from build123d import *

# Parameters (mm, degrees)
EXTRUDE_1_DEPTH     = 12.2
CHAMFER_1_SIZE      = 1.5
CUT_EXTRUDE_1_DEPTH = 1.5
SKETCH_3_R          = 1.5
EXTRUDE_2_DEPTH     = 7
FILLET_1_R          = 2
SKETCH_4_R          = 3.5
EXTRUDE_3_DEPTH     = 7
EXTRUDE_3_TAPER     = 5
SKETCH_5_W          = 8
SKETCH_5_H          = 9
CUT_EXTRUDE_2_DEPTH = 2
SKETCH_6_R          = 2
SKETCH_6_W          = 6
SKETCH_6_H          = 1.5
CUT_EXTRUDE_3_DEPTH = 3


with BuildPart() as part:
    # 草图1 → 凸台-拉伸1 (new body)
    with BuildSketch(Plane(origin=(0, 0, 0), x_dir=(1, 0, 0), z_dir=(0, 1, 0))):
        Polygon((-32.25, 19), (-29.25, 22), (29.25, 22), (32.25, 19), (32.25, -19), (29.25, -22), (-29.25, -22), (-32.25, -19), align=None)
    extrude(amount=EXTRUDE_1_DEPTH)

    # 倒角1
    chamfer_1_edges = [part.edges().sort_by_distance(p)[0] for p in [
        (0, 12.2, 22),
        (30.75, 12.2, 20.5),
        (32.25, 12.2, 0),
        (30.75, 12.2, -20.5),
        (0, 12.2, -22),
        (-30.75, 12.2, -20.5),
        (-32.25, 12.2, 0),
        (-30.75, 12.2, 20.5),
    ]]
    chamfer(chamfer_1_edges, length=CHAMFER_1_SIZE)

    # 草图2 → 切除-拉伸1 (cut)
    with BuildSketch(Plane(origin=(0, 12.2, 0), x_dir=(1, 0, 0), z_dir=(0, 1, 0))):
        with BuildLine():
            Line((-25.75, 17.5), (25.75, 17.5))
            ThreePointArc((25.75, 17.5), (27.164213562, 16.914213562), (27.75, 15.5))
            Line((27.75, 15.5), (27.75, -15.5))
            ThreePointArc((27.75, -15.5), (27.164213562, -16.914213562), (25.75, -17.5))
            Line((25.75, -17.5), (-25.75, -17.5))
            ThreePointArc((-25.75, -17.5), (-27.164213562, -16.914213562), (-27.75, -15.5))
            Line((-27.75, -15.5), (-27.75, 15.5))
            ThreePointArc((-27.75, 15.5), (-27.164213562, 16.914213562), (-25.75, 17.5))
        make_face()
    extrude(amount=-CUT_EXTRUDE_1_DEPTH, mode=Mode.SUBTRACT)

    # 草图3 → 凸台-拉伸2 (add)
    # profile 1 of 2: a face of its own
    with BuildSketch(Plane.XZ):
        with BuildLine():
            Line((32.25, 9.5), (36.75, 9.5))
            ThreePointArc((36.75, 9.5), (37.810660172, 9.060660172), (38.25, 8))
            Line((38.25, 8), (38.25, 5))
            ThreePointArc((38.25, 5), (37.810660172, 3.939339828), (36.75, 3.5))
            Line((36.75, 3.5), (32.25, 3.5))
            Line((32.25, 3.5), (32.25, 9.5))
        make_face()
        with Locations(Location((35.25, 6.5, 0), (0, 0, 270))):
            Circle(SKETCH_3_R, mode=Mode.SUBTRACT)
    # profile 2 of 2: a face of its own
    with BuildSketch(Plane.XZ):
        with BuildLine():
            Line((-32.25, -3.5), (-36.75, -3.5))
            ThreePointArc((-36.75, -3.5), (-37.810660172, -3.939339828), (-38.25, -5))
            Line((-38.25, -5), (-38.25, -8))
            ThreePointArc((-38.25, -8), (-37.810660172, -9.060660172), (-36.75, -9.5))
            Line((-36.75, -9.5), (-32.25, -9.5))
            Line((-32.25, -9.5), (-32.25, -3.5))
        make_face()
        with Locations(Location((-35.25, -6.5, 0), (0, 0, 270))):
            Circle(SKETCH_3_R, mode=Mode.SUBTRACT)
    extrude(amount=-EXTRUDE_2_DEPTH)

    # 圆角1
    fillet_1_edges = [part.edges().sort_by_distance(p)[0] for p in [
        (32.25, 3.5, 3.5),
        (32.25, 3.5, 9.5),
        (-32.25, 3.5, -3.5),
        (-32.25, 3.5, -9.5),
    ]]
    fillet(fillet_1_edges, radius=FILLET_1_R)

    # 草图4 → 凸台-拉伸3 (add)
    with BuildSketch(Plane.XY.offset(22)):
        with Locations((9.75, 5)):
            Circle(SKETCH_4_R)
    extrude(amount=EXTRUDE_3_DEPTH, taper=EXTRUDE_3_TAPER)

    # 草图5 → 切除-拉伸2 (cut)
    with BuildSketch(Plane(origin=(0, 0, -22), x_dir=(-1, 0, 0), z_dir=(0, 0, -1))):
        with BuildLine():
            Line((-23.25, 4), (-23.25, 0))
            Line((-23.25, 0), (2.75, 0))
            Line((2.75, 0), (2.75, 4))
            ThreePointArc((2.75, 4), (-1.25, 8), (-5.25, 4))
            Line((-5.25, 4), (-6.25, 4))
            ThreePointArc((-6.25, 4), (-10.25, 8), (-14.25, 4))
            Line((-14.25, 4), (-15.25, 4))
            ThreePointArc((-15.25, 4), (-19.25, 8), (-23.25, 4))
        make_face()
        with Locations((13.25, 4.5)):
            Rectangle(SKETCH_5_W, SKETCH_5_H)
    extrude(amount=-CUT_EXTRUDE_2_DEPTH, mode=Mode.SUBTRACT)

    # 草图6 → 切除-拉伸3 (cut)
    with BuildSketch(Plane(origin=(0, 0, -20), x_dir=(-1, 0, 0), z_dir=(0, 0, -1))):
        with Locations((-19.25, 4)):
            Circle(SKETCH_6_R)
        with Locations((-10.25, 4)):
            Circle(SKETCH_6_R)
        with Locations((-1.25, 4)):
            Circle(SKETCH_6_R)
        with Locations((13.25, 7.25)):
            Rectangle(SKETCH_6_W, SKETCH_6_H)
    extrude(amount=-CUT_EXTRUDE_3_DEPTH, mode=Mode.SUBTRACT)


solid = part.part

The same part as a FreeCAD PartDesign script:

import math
import FreeCAD as App
import Part
import Sketcher
Q = App.Units.Quantity


def edges_at(feature, points):
    """Names of the edges that pass closest to the given points."""
    edges = feature.Shape.Edges
    near = lambda p: min(range(len(edges)), key=lambda i: edges[i].distToShape(Part.Vertex(*p))[0])
    return sorted({f"Edge{near(p) + 1}" for p in points})


def add_polygon(sketch, points):
    """Adds a closed chain of lines whose ends are joined by coincident constraints."""
    first, n = sketch.GeometryCount, len(points)
    for a, b in zip(points, points[1:] + points[:1]):
        sketch.addGeometry(Part.LineSegment(App.Vector(*a, 0), App.Vector(*b, 0)), False)
    for i in range(n):
        sketch.addConstraint(Sketcher.Constraint("Coincident", first + i, 2, first + (i + 1) % n, 1))

doc = App.newDocument("Part")
params = doc.addObject("Spreadsheet::Sheet", "Params")
for row, (alias, value) in enumerate([
    ("sketch1_height", "38 mm"),
    ("sketch1_width", "58.5 mm"),
    ("pad1_length", "12.2 mm"),
    ("chamfer_size", "1.5 mm"),
    ("sketch2_radius", "2 mm"),
    ("sketch2_height", "31 mm"),
    ("sketch2_width", "51.5 mm"),
    ("pocket1_length", "1.5 mm"),
    ("sketch3_diameter", "3 mm"),
    ("sketch3_height", "6 mm"),
    ("sketch3_width", "4.5 mm"),
    ("pad2_length", "7 mm"),
    ("fillet_radius", "2 mm"),
    ("sketch4_diameter", "7 mm"),
    ("pad3_length", "7 mm"),
    ("pad3_taper", "-5 deg"),
    ("sketch5_radius", "4 mm"),
    ("sketch5_width", "26 mm"),
    ("sketch5_width2", "8 mm"),
    ("sketch5_height", "4 mm"),
    ("sketch5_height2", "9 mm"),
    ("pocket2_length", "2 mm"),
    ("sketch6_diameter", "4 mm"),
    ("sketch6_width", "6 mm"),
    ("sketch6_height", "1.5 mm"),
    ("pocket3_length", "3 mm"),
], start=1):
    params.set(f"A{row}", alias)
    params.set(f"B{row}", "=" + value)
    params.setAlias(f"B{row}", alias)

body = doc.addObject("PartDesign::Body", "Body")

# Sketch on XZ plane
sketch1 = body.newObject("Sketcher::SketchObject", "Sketch")
sketch1.AttachmentSupport = (doc.getObject("XZ_Plane"), [""])
sketch1.MapMode = "FlatFace"
add_polygon(sketch1, [(-29.2, -22), (-32.2, -19), (-32.2, 19), (-29.2, 22), (29.2, 22), (32.2, 19), (32.2, -19), (29.2, -22)])  # lines 0-7
sketch1.addConstraint([
    Sketcher.Constraint("Vertical", 1),
    Sketcher.Constraint("Horizontal", 3),
    Sketcher.Constraint("Vertical", 5),
    Sketcher.Constraint("Horizontal", 7),
    Sketcher.Constraint("Symmetric", 0, 2, 4, 2, -1, 1),
    Sketcher.Constraint("Symmetric", 2, 2, 6, 2, -1, 1),
    Sketcher.Constraint("Perpendicular", 0, 2),
    Sketcher.Constraint("Perpendicular", 2, 4),
    Sketcher.Constraint("Perpendicular", 4, 6),
    Sketcher.Constraint("Horizontal", 1, 2, 4, 2),
    Sketcher.Constraint("Vertical", 3, 2, 6, 2),
    Sketcher.Constraint("DistanceY", 1, 1, 1, 2, Q("38 mm")),
    Sketcher.Constraint("DistanceX", 3, 1, 3, 2, Q("58.5 mm")),
    Sketcher.Constraint("DistanceY", -1, 1, 2, 2, Q("22 mm")),
])
sketch1.setExpression("Constraints[19]", "Params.sketch1_height")
sketch1.setExpression("Constraints[20]", "Params.sketch1_width")
pad1 = body.newObject("PartDesign::Pad", "Pad")
pad1.Profile = sketch1
pad1.setExpression("Length", "Params.pad1_length")
pad1.Reversed = True
doc.recompute()

chamfer = body.newObject("PartDesign::Chamfer", "Chamfer")
chamfer.Base = (pad1, edges_at(pad1, [
    (0, 12.2, 22),
    (30.75, 12.2, 20.5),
    (32.25, 12.2, 0),
    (30.75, 12.2, -20.5),
    (0, 12.2, -22),
    (-30.75, 12.2, -20.5),
    (-32.25, 12.2, 0),
    (-30.75, 12.2, 20.5),
]))
chamfer.setExpression("Size", "Params.chamfer_size")

# Sketch on XZ plane
sketch2 = body.newObject("Sketcher::SketchObject", "Sketch001")
sketch2.AttachmentSupport = (doc.getObject("XZ_Plane"), [""])
sketch2.MapMode = "FlatFace"
sketch2.AttachmentOffset = App.Placement(App.Vector(0, 0, -12.2), App.Rotation())
sketch2.addGeometry([
    Part.LineSegment(App.Vector(25.8, -17.5, 0), App.Vector(-25.8, -17.5, 0)),  # 0
    Part.ArcOfCircle(Part.Circle(App.Vector(-25.7, -15.5, 0), App.Vector(0, 0, 1), 2), math.radians(-180), math.radians(-90)),  # 1
    Part.LineSegment(App.Vector(-27.8, -15.5, 0), App.Vector(-27.8, 15.5, 0)),  # 2
    Part.ArcOfCircle(Part.Circle(App.Vector(-25.7, 15.5, 0), App.Vector(0, 0, 1), 2), math.radians(90), math.radians(180)),  # 3
    Part.LineSegment(App.Vector(-25.8, 17.5, 0), App.Vector(25.8, 17.5, 0)),  # 4
    Part.ArcOfCircle(Part.Circle(App.Vector(25.7, 15.5, 0), App.Vector(0, 0, 1), 2), math.radians(0), math.radians(90)),  # 5
    Part.LineSegment(App.Vector(27.8, 15.5, 0), App.Vector(27.8, -15.5, 0)),  # 6
    Part.ArcOfCircle(Part.Circle(App.Vector(25.7, -15.5, 0), App.Vector(0, 0, 1), 2), math.radians(-90), math.radians(0)),  # 7
], False)
sketch2.addConstraint([
    Sketcher.Constraint("Tangent", 0, 2, 1, 2),
    Sketcher.Constraint("Tangent", 1, 1, 2, 1),
    Sketcher.Constraint("Tangent", 2, 2, 3, 2),
    Sketcher.Constraint("Tangent", 3, 1, 4, 1),
    Sketcher.Constraint("Tangent", 4, 2, 5, 2),
    Sketcher.Constraint("Tangent", 5, 1, 6, 1),
    Sketcher.Constraint("Tangent", 6, 2, 7, 2),
    Sketcher.Constraint("Tangent", 7, 1, 0, 1),
    Sketcher.Constraint("Horizontal", 0),
    Sketcher.Constraint("Vertical", 2),
    Sketcher.Constraint("Horizontal", 4),
    Sketcher.Constraint("Vertical", 6),
    Sketcher.Constraint("Equal", 1, 3),
    Sketcher.Constraint("Equal", 3, 5),
    Sketcher.Constraint("Equal", 5, 7),
    Sketcher.Constraint("Symmetric", 1, 3, 5, 3, -1, 1),
    Sketcher.Constraint("Radius", 1, Q("2 mm")),
    Sketcher.Constraint("DistanceY", 2, 1, 2, 2, Q("31 mm")),
    Sketcher.Constraint("DistanceX", 0, 2, 0, 1, Q("51.5 mm")),
])
sketch2.setExpression("Constraints[16]", "Params.sketch2_radius")
sketch2.setExpression("Constraints[17]", "Params.sketch2_height")
sketch2.setExpression("Constraints[18]", "Params.sketch2_width")
pocket1 = body.newObject("PartDesign::Pocket", "Pocket")
pocket1.Profile = sketch2
pocket1.setExpression("Length", "Params.pocket1_length")
pocket1.Reversed = True

# Sketch on XZ plane
sketch3 = body.newObject("Sketcher::SketchObject", "Sketch002")
sketch3.AttachmentSupport = (doc.getObject("XZ_Plane"), [""])
sketch3.MapMode = "FlatFace"
sketch3.addGeometry([
    Part.LineSegment(App.Vector(36.8, 9.5, 0), App.Vector(32.2, 9.5, 0)),  # 0
    Part.LineSegment(App.Vector(32.2, 9.5, 0), App.Vector(32.2, 3.5, 0)),  # 1
    Part.LineSegment(App.Vector(32.2, 3.5, 0), App.Vector(36.8, 3.5, 0)),  # 2
    Part.ArcOfCircle(Part.Circle(App.Vector(36.8, 5, 0), App.Vector(0, 0, 1), 1.5), math.radians(-90), math.radians(0)),  # 3
    Part.LineSegment(App.Vector(38.2, 5, 0), App.Vector(38.2, 8, 0)),  # 4
    Part.ArcOfCircle(Part.Circle(App.Vector(36.8, 8, 0), App.Vector(0, 0, 1), 1.5), math.radians(0), math.radians(90)),  # 5
    Part.Circle(App.Vector(35.2, 6.5, 0), App.Vector(0, 0, 1), 1.5),  # 6
    Part.LineSegment(App.Vector(-32.2, -3.5, 0), App.Vector(-36.8, -3.5, 0)),  # 7
    Part.ArcOfCircle(Part.Circle(App.Vector(-36.8, -5, 0), App.Vector(0, 0, 1), 1.5), math.radians(90), math.radians(180)),  # 8
    Part.LineSegment(App.Vector(-38.2, -5, 0), App.Vector(-38.2, -8, 0)),  # 9
    Part.ArcOfCircle(Part.Circle(App.Vector(-36.8, -8, 0), App.Vector(0, 0, 1), 1.5), math.radians(180), math.radians(270)),  # 10
    Part.LineSegment(App.Vector(-36.8, -9.5, 0), App.Vector(-32.2, -9.5, 0)),  # 11
    Part.LineSegment(App.Vector(-32.2, -9.5, 0), App.Vector(-32.2, -3.5, 0)),  # 12
    Part.Circle(App.Vector(-35.2, -6.5, 0), App.Vector(0, 0, 1), 1.5),  # 13
], False)
sketch3.addConstraint([
    Sketcher.Constraint("Coincident", 0, 2, 1, 1),
    Sketcher.Constraint("Coincident", 1, 2, 2, 1),
    Sketcher.Constraint("Tangent", 2, 2, 3, 1),
    Sketcher.Constraint("Tangent", 3, 2, 4, 1),
    Sketcher.Constraint("Tangent", 4, 2, 5, 1),
    Sketcher.Constraint("Tangent", 5, 2, 0, 1),
    Sketcher.Constraint("Tangent", 7, 2, 8, 1),
    Sketcher.Constraint("Tangent", 8, 2, 9, 1),
    Sketcher.Constraint("Tangent", 9, 2, 10, 1),
    Sketcher.Constraint("Tangent", 10, 2, 11, 1),
    Sketcher.Constraint("Coincident", 11, 2, 12, 1),
    Sketcher.Constraint("Coincident", 12, 2, 7, 1),
    Sketcher.Constraint("Horizontal", 0),
    Sketcher.Constraint("Vertical", 1),
    Sketcher.Constraint("Horizontal", 2),
    Sketcher.Constraint("Vertical", 4),
    Sketcher.Constraint("Horizontal", 7),
    Sketcher.Constraint("Vertical", 9),
    Sketcher.Constraint("Horizontal", 11),
    Sketcher.Constraint("Vertical", 12),
    Sketcher.Constraint("Equal", 3, 5),
    Sketcher.Constraint("Equal", 5, 6),
    Sketcher.Constraint("Equal", 6, 8),
    Sketcher.Constraint("Equal", 8, 10),
    Sketcher.Constraint("Equal", 10, 13),
    Sketcher.Constraint("Symmetric", 3, 3, 8, 3, -1, 1),
    Sketcher.Constraint("Symmetric", 6, 3, 13, 3, -1, 1),
    Sketcher.Constraint("Symmetric", 0, 2, 11, 2, -1, 1),
    Sketcher.Constraint("Diameter", 6, Q("3 mm")),
    Sketcher.Constraint("DistanceY", 1, 2, 1, 1, Q("6 mm")),
    Sketcher.Constraint("DistanceX", 0, 2, 0, 1, Q("4.5 mm")),
    Sketcher.Constraint("DistanceY", -1, 1, 3, 3, Q("5 mm")),
    Sketcher.Constraint("DistanceX", 8, 3, 6, 3, Q("72 mm")),
    Sketcher.Constraint("DistanceY", 13, 3, 6, 3, Q("13 mm")),
    Sketcher.Constraint("DistanceX", 0, 2, 6, 3, Q("3 mm")),
])
sketch3.setExpression("Constraints[28]", "Params.sketch3_diameter")
sketch3.setExpression("Constraints[29]", "Params.sketch3_height")
sketch3.setExpression("Constraints[30]", "Params.sketch3_width")
pad2 = body.newObject("PartDesign::Pad", "Pad001")
pad2.Profile = sketch3
pad2.setExpression("Length", "Params.pad2_length")
pad2.Reversed = True
doc.recompute()

fillet = body.newObject("PartDesign::Fillet", "Fillet")
fillet.Base = (pad2, edges_at(pad2, [
    (32.25, 3.5, 3.5),
    (32.25, 3.5, 9.5),
    (-32.25, 3.5, -3.5),
    (-32.25, 3.5, -9.5),
]))
fillet.setExpression("Radius", "Params.fillet_radius")

# Sketch on XY plane
sketch4 = body.newObject("Sketcher::SketchObject", "Sketch003")
sketch4.AttachmentSupport = (doc.getObject("XY_Plane"), [""])
sketch4.MapMode = "FlatFace"
sketch4.AttachmentOffset = App.Placement(App.Vector(0, 0, 22), App.Rotation())
sketch4.addGeometry(Part.Circle(App.Vector(9.8, 5, 0), App.Vector(0, 0, 1), 3.5), False)
sketch4.addConstraint([
    Sketcher.Constraint("Diameter", 0, Q("7 mm")),
    Sketcher.Constraint("DistanceY", -1, 1, 0, 3, Q("5 mm")),
    Sketcher.Constraint("DistanceX", -1, 1, 0, 3, Q("9.75 mm")),
])
sketch4.setExpression("Constraints[0]", "Params.sketch4_diameter")
pad3 = body.newObject("PartDesign::Pad", "Pad002")
pad3.Profile = sketch4
pad3.setExpression("Length", "Params.pad3_length")
pad3.setExpression("TaperAngle", "Params.pad3_taper")

# Sketch on XY plane
sketch5 = body.newObject("Sketcher::SketchObject", "Sketch004")
sketch5.AttachmentSupport = (doc.getObject("XY_Plane"), [""])
sketch5.MapMode = "FlatFace"
sketch5.AttachmentOffset = App.Placement(App.Vector(0, 0, -22), App.Rotation())
sketch5.addGeometry(Part.LineSegment(App.Vector(23.2, 4, 0), App.Vector(23.2, 0, 0)), False)  # 0
sketch5.addGeometry(Part.LineSegment(App.Vector(23.2, 0, 0), App.Vector(-2.8, 0, 0)), False)  # 1
sketch5.addGeometry(Part.LineSegment(App.Vector(-2.8, 0, 0), App.Vector(-2.8, 4, 0)), False)  # 2
sketch5.addGeometry(Part.ArcOfCircle(Part.Circle(App.Vector(1.2, 4, 0), App.Vector(0, 0, 1), 4), math.radians(0), math.radians(180)), False)  # 3
sketch5.addGeometry(Part.LineSegment(App.Vector(5.2, 4, 0), App.Vector(6.2, 4, 0)), False)  # 4
sketch5.addGeometry(Part.ArcOfCircle(Part.Circle(App.Vector(10.2, 4, 0), App.Vector(0, 0, 1), 4), math.radians(0), math.radians(180)), False)  # 5
sketch5.addGeometry(Part.LineSegment(App.Vector(14.2, 4, 0), App.Vector(15.2, 4, 0)), False)  # 6
sketch5.addGeometry(Part.ArcOfCircle(Part.Circle(App.Vector(19.2, 4, 0), App.Vector(0, 0, 1), 4), math.radians(0), math.radians(180)), False)  # 7
add_polygon(sketch5, [(-9.2, 9), (-9.2, 0), (-17.2, 0), (-17.2, 9)])  # lines 8-11
sketch5.addConstraint([
    Sketcher.Constraint("Coincident", 0, 2, 1, 1),
    Sketcher.Constraint("Coincident", 1, 2, 2, 1),
    Sketcher.Constraint("Tangent", 2, 2, 3, 2),
    Sketcher.Constraint("Coincident", 3, 1, 4, 1),
    Sketcher.Constraint("Coincident", 4, 2, 5, 2),
    Sketcher.Constraint("Coincident", 5, 1, 6, 1),
    Sketcher.Constraint("Coincident", 6, 2, 7, 2),
    Sketcher.Constraint("Tangent", 7, 1, 0, 1),
    Sketcher.Constraint("Vertical", 0),
    Sketcher.Constraint("Horizontal", 1),
    Sketcher.Constraint("Vertical", 2),
    Sketcher.Constraint("Horizontal", 4),
    Sketcher.Constraint("Horizontal", 6),
    Sketcher.Constraint("Vertical", 8),
    Sketcher.Constraint("Horizontal", 9),
    Sketcher.Constraint("Vertical", 10),
    Sketcher.Constraint("Horizontal", 11),
    Sketcher.Constraint("Equal", 3, 5),
    Sketcher.Constraint("Equal", 5, 7),
    Sketcher.Constraint("PointOnObject", 0, 2, -1),
    Sketcher.Constraint("PointOnObject", 8, 2, -1),
    Sketcher.Constraint("Horizontal", 3, 3, 5, 3),
    Sketcher.Constraint("Horizontal", 5, 3, 7, 3),
    Sketcher.Constraint("Horizontal", 2, 2, 3, 1),
    Sketcher.Constraint("Horizontal", 4, 2, 5, 1),
    Sketcher.Constraint("Equal", 4, 6),
    Sketcher.Constraint("Radius", 3, Q("4 mm")),
    Sketcher.Constraint("DistanceX", 1, 2, 1, 1, Q("26 mm")),
    Sketcher.Constraint("DistanceX", 9, 2, 9, 1, Q("8 mm")),
    Sketcher.Constraint("DistanceY", 0, 2, 0, 1, Q("4 mm")),
    Sketcher.Constraint("DistanceY", 8, 2, 8, 1, Q("9 mm")),
    Sketcher.Constraint("DistanceX", 8, 2, 1, 2, Q("6.5 mm")),
    Sketcher.Constraint("DistanceX", -1, 1, 3, 3, Q("1.25 mm")),
])
sketch5.setExpression("Constraints[30]", "Params.sketch5_radius")
sketch5.setExpression("Constraints[31]", "Params.sketch5_width")
sketch5.setExpression("Constraints[32]", "Params.sketch5_width2")
sketch5.setExpression("Constraints[33]", "Params.sketch5_height")
sketch5.setExpression("Constraints[34]", "Params.sketch5_height2")
pocket2 = body.newObject("PartDesign::Pocket", "Pocket001")
pocket2.Profile = sketch5
pocket2.setExpression("Length", "Params.pocket2_length")
pocket2.Reversed = True

# Sketch on XY plane
sketch6 = body.newObject("Sketcher::SketchObject", "Sketch005")
sketch6.AttachmentSupport = (doc.getObject("XY_Plane"), [""])
sketch6.MapMode = "FlatFace"
sketch6.AttachmentOffset = App.Placement(App.Vector(0, 0, -20), App.Rotation())
sketch6.addGeometry(Part.Circle(App.Vector(19.2, 4, 0), App.Vector(0, 0, 1), 2), False)  # 0
sketch6.addGeometry(Part.Circle(App.Vector(10.2, 4, 0), App.Vector(0, 0, 1), 2), False)  # 1
sketch6.addGeometry(Part.Circle(App.Vector(1.2, 4, 0), App.Vector(0, 0, 1), 2), False)  # 2
add_polygon(sketch6, [(-10.2, 8), (-10.2, 6.5), (-16.2, 6.5), (-16.2, 8)])  # lines 3-6
sketch6.addConstraint([
    Sketcher.Constraint("Vertical", 3),
    Sketcher.Constraint("Horizontal", 4),
    Sketcher.Constraint("Vertical", 5),
    Sketcher.Constraint("Horizontal", 6),
    Sketcher.Constraint("Equal", 0, 1),
    Sketcher.Constraint("Equal", 1, 2),
    Sketcher.Constraint("Horizontal", 0, 3, 1, 3),
    Sketcher.Constraint("Horizontal", 1, 3, 2, 3),
    Sketcher.Constraint("Diameter", 0, Q("4 mm")),
    Sketcher.Constraint("DistanceX", 4, 2, 4, 1, Q("6 mm")),
    Sketcher.Constraint("DistanceY", 3, 2, 3, 1, Q("1.5 mm")),
    Sketcher.Constraint("DistanceY", -1, 1, 0, 3, Q("4 mm")),
    Sketcher.Constraint("DistanceY", -1, 1, 5, 2, Q("8 mm")),
    Sketcher.Constraint("DistanceX", 1, 3, 0, 3, Q("9 mm")),
    Sketcher.Constraint("DistanceX", 2, 3, 1, 3, Q("9 mm")),
    Sketcher.Constraint("DistanceX", 3, 2, 2, 3, Q("11.5 mm")),
    Sketcher.Constraint("DistanceX", -1, 1, 0, 3, Q("19.25 mm")),
])
sketch6.setExpression("Constraints[12]", "Params.sketch6_diameter")
sketch6.setExpression("Constraints[13]", "Params.sketch6_width")
sketch6.setExpression("Constraints[14]", "Params.sketch6_height")
pocket3 = body.newObject("PartDesign::Pocket", "Pocket002")
pocket3.Profile = sketch6
pocket3.setExpression("Length", "Params.pocket3_length")
pocket3.Reversed = True

doc.recompute()
